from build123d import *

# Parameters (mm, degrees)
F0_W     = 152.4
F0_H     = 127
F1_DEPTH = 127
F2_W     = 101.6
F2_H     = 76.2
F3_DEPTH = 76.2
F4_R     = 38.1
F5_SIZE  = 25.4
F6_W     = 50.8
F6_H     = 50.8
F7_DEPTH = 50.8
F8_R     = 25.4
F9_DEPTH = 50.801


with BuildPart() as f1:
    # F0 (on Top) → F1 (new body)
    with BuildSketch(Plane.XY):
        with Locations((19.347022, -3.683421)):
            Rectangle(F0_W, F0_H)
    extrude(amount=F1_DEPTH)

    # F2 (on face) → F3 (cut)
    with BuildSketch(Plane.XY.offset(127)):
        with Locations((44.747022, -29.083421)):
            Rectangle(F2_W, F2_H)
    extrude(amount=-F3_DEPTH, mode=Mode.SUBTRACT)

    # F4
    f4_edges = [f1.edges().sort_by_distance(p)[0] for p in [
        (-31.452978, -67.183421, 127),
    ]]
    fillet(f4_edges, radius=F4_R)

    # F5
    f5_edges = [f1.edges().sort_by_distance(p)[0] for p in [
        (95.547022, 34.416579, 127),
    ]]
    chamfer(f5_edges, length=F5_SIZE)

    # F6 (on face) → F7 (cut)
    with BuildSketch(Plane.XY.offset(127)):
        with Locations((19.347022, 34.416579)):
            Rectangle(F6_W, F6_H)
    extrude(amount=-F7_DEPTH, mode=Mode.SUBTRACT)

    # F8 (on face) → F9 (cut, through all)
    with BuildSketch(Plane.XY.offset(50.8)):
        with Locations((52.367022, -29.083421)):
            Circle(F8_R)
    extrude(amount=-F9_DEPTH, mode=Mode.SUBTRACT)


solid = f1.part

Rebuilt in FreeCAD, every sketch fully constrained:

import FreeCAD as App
import Part
import Sketcher

V = App.Vector
Q = App.Units.Quantity


def edges_at(feature, points):
    """Names of the edges that pass closest to the given points."""
    edges = feature.Shape.Edges
    near = lambda p: min(range(len(edges)), key=lambda i: edges[i].distToShape(Part.Vertex(*p))[0])
    return sorted({f"Edge{near(p) + 1}" for p in points})


def add_polygon(sketch, points):
    """Adds a closed chain of lines whose ends are joined by coincident constraints."""
    first, n = sketch.GeometryCount, len(points)
    for a, b in zip(points, points[1:] + points[:1]):
        sketch.addGeometry(Part.LineSegment(App.Vector(*a, 0), App.Vector(*b, 0)), False)
    for i in range(n):
        sketch.addConstraint(Sketcher.Constraint("Coincident", first + i, 2, first + (i + 1) % n, 1))

doc = App.newDocument("Part")
body = doc.addObject("PartDesign::Body", "Body")

# Sketch on XY plane
sketch1 = body.newObject("Sketcher::SketchObject", "Sketch")
sketch1.AttachmentSupport = (doc.getObject("XY_Plane"), [""])
sketch1.MapMode = "FlatFace"
add_polygon(sketch1, [(-57, 60), (-57, -67), (96, -67), (96, 60)])  # lines 0-3
sketch1.addConstraint([
    Sketcher.Constraint("Vertical", 0),
    Sketcher.Constraint("Horizontal", 1),
    Sketcher.Constraint("Vertical", 2),
    Sketcher.Constraint("Horizontal", 3),
    Sketcher.Constraint("DistanceX", 1, 1, 1, 2, Q("6 in")),
    Sketcher.Constraint("DistanceY", 0, 2, 0, 1, Q("5 in")),
    Sketcher.Constraint("DistanceY", 0, 2, -1, 1, 67.183421),
    Sketcher.Constraint("DistanceX", -1, 1, 1, 2, 95.547022),
])
pad1 = body.newObject("PartDesign::Pad", "Pad")
pad1.Profile = sketch1
pad1.Length = Q("5 in")

# Sketch on XY plane
sketch2 = body.newObject("Sketcher::SketchObject", "Sketch001")
sketch2.AttachmentSupport = (doc.getObject("XY_Plane"), [""])
sketch2.MapMode = "FlatFace"
sketch2.AttachmentOffset = App.Placement(V(0, 0, 5 * 25.4), App.Rotation())
add_polygon(sketch2, [(-6, 9), (-6, -67), (96, -67), (96, 9)])  # lines 0-3
sketch2.addConstraint([
    Sketcher.Constraint("Vertical", 0),
    Sketcher.Constraint("Horizontal", 1),
    Sketcher.Constraint("Vertical", 2),
    Sketcher.Constraint("Horizontal", 3),
    Sketcher.Constraint("DistanceX", 1, 1, 1, 2, Q("4 in")),
    Sketcher.Constraint("DistanceY", 0, 2, 0, 1, Q("3 in")),
    Sketcher.Constraint("DistanceX", 0, 2, -1, 1, 6.052978),
    Sketcher.Constraint("DistanceY", 0, 2, -1, 1, 67.183421),
])
pocket1 = body.newObject("PartDesign::Pocket", "Pocket")
pocket1.Profile = sketch2
pocket1.Length = Q("3 in")
doc.recompute()

fillet = body.newObject("PartDesign::Fillet", "Fillet")
fillet.Base = (pocket1, edges_at(pocket1, [(-31.453, -67.183, 127)]))
fillet.Radius = Q("1.5 in")
doc.recompute()

chamfer = body.newObject("PartDesign::Chamfer", "Chamfer")
chamfer.Base = (fillet, edges_at(fillet, [(95.547, 34.417, 127)]))
chamfer.Size = Q("1 in")

# Sketch on XY plane
sketch3 = body.newObject("Sketcher::SketchObject", "Sketch002")
sketch3.AttachmentSupport = (doc.getObject("XY_Plane"), [""])
sketch3.MapMode = "FlatFace"
sketch3.AttachmentOffset = App.Placement(V(0, 0, 5 * 25.4), App.Rotation())
add_polygon(sketch3, [(-6, 60), (-6, 9), (45, 9), (45, 60)])  # lines 0-3
sketch3.addConstraint([
    Sketcher.Constraint("Vertical", 0),
    Sketcher.Constraint("Horizontal", 1),
    Sketcher.Constraint("Vertical", 2),
    Sketcher.Constraint("Horizontal", 3),
    Sketcher.Constraint("Equal", 3, 0),
    Sketcher.Constraint("DistanceX", 1, 1, 1, 2, Q("2 in")),
    Sketcher.Constraint("DistanceX", 0, 2, -1, 1, 6.052978),
    Sketcher.Constraint("DistanceY", -1, 1, 0, 2, 9.016579),
])
pocket2 = body.newObject("PartDesign::Pocket", "Pocket001")
pocket2.Profile = sketch3
pocket2.Length = Q("2 in")

# Sketch on XY plane
sketch4 = body.newObject("Sketcher::SketchObject", "Sketch003")
sketch4.AttachmentSupport = (doc.getObject("XY_Plane"), [""])
sketch4.MapMode = "FlatFace"
sketch4.AttachmentOffset = App.Placement(V(0, 0, 2 * 25.4), App.Rotation())
sketch4.addGeometry(Part.Circle(V(52, -29, 0), V(0, 0, 1), 25), False)
sketch4.addConstraint([
    Sketcher.Constraint("Diameter", 0, Q("2 in")),
    Sketcher.Constraint("DistanceY", 0, 3, -1, 1, 29.083421),
    Sketcher.Constraint("DistanceX", -1, 1, 0, 3, 52.367022),
])
pocket3 = body.newObject("PartDesign::Pocket", "Pocket002")
pocket3.Profile = sketch4
pocket3.Type = "ThroughAll"

doc.recompute()
